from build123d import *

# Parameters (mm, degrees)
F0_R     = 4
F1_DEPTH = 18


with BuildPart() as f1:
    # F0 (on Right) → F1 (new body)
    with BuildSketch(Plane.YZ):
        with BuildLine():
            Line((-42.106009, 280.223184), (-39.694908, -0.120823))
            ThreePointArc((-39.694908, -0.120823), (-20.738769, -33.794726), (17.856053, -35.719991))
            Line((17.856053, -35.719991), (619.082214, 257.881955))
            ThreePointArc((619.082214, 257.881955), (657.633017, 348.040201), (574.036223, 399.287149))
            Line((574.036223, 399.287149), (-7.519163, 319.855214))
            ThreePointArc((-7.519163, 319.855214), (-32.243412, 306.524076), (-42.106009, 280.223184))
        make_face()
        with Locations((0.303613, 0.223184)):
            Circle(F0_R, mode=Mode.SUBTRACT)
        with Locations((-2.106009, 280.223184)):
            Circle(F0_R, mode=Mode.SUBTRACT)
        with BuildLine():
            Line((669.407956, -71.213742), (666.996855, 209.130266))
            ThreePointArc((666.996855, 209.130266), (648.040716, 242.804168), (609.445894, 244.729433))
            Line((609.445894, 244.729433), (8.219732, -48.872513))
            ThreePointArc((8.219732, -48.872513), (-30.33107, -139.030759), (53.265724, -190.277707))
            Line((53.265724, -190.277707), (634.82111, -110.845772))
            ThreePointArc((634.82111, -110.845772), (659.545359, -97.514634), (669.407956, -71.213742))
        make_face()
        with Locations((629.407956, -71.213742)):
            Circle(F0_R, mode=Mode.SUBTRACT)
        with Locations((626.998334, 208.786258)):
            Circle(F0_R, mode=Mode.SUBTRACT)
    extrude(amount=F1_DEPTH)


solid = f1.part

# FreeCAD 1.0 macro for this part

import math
import FreeCAD as App
import Part
import Sketcher
Q = App.Units.Quantity

doc = App.newDocument("Part")
body = doc.addObject("PartDesign::Body", "Body")
body.AllowCompound = True

# Sketch on YZ plane
sketch1 = body.newObject("Sketcher::SketchObject", "Sketch")
sketch1.AttachmentSupport = (doc.getObject("YZ_Plane"), [""])
sketch1.MapMode = "FlatFace"
sketch1.addGeometry([
    Part.LineSegment(App.Vector(-42.106009, 280.223184, 0), App.Vector(-39.694908, -0.120823, 0)),  # 0
    Part.ArcOfCircle(Part.Circle(App.Vector(0.303612, 0.223183, 0), App.Vector(0, 0, 1), 39.999999), math.radians(-179.507241), math.radians(-63.971955)),  # 1
    Part.LineSegment(App.Vector(17.856053, -35.719991, 0), App.Vector(619.082214, 257.881955, 0)),  # 2
    Part.ArcOfCircle(Part.Circle(App.Vector(586.17139, 325.275409, 0), App.Vector(0, 0, 1), 75), math.radians(-63.971958), math.radians(99.311519)),  # 3
    Part.LineSegment(App.Vector(574.036223, 399.287149, 0), App.Vector(-7.519163, 319.855214, 0)),  # 4
    Part.ArcOfCircle(Part.Circle(App.Vector(-2.106007, 280.223183, 0), App.Vector(0, 0, 1), 40.000002), math.radians(97.777638), math.radians(179.999999)),  # 5
    Part.Circle(App.Vector(0.303613, 0.223184, 0), App.Vector(0, 0, 1), 4),  # 6
    Part.Circle(App.Vector(-2.106009, 280.223184, 0), App.Vector(0, 0, 1), 4),  # 7
    Part.LineSegment(App.Vector(669.407956, -71.213742, 0), App.Vector(666.996855, 209.130266, 0)),  # 8
    Part.ArcOfCircle(Part.Circle(App.Vector(626.998335, 208.786259, 0), App.Vector(0, 0, 1), 39.999999), math.radians(0.49276), math.radians(116.028045)),  # 9
    Part.LineSegment(App.Vector(609.445894, 244.729433, 0), App.Vector(8.219732, -48.872513, 0)),  # 10
    Part.ArcOfCircle(Part.Circle(App.Vector(41.130558, -116.265966, 0), App.Vector(0, 0, 1), 75), math.radians(116.028043), math.radians(279.311519)),  # 11
    Part.LineSegment(App.Vector(53.265724, -190.277707, 0), App.Vector(634.82111, -110.845772, 0)),  # 12
    Part.ArcOfCircle(Part.Circle(App.Vector(629.407954, -71.213741, 0), App.Vector(0, 0, 1), 40.000002), math.radians(-82.222362), math.radians(-0.000001)),  # 13
    Part.Circle(App.Vector(629.407956, -71.213742, 0), App.Vector(0, 0, 1), 4),  # 14
    Part.Circle(App.Vector(626.998334, 208.786258, 0), App.Vector(0, 0, 1), 4),  # 15
], False)
sketch1.addConstraint([
    Sketcher.Constraint("Tangent", 0, 2, 1, 1),
    Sketcher.Constraint("Tangent", 1, 2, 2, 1),
    Sketcher.Constraint("Tangent", 2, 2, 3, 1),
    Sketcher.Constraint("Coincident", 3, 2, 4, 1),
    Sketcher.Constraint("Tangent", 4, 2, 5, 1),
    Sketcher.Constraint("Coincident", 5, 2, 0, 1),
    Sketcher.Constraint("Tangent", 8, 2, 9, 1),
    Sketcher.Constraint("Tangent", 9, 2, 10, 1),
    Sketcher.Constraint("Tangent", 10, 2, 11, 1),
    Sketcher.Constraint("Coincident", 11, 2, 12, 1),
    Sketcher.Constraint("Tangent", 12, 2, 13, 1),
    Sketcher.Constraint("Coincident", 13, 2, 8, 1),
    Sketcher.Constraint("Coincident", 6, 3, 1, 3),
    Sketcher.Constraint("Coincident", 7, 3, 5, 3),
    Sketcher.Constraint("Coincident", 14, 3, 13, 3),
    Sketcher.Constraint("Coincident", 15, 3, 9, 3),
    Sketcher.Constraint("Equal", 6, 7),
    Sketcher.Constraint("Equal", 1, 9),
    Sketcher.Constraint("Equal", 3, 11),
    Sketcher.Constraint("Equal", 5, 13),
    Sketcher.Constraint("Equal", 7, 14),
    Sketcher.Constraint("Equal", 14, 15),
    Sketcher.Constraint("Parallel", 0, 8),
    Sketcher.Constraint("Parallel", 2, 10),
    Sketcher.Constraint("Parallel", 4, 12),
    Sketcher.Constraint("Horizontal", 7, 3, 5, 2),
    Sketcher.Constraint("Horizontal", 14, 3, 13, 2),
    Sketcher.Constraint("Equal", 0, 8),
    Sketcher.Constraint("Equal", 2, 10),
    Sketcher.Constraint("Diameter", 6, Q("8 mm")),
    Sketcher.Constraint("Radius", 1, Q("39.999999 mm")),
    Sketcher.Constraint("Radius", 3, Q("75 mm")),
    Sketcher.Constraint("Radius", 5, Q("40.000002 mm")),
    Sketcher.Constraint("DistanceY", 1, 3, 5, 3, Q("280 mm")),
    Sketcher.Constraint("DistanceX", 7, 3, 3, 3, Q("588.277399 mm")),
    Sketcher.Constraint("DistanceX", 0, 2, 5, 3, Q("37.588901 mm")),
    Sketcher.Constraint("Distance", 4, Q("586.954938 mm")),
    Sketcher.Constraint("DistanceX", -1, 1, 3, 3, Q("586.17139 mm")),
    Sketcher.Constraint("DistanceY", -1, 1, 3, 3, Q("325.275409 mm")),
    Sketcher.Constraint("DistanceY", -1, 1, 9, 3, Q("208.786259 mm")),
    Sketcher.Constraint("DistanceY", 1, 2, -1, 1, Q("35.719991 mm")),
    Sketcher.Constraint("DistanceX", -1, 1, 12, 2, Q("634.82111 mm")),
])
pad1 = body.newObject("PartDesign::Pad", "Pad")
pad1.Profile = sketch1
pad1.Length = 18

doc.recompute()
